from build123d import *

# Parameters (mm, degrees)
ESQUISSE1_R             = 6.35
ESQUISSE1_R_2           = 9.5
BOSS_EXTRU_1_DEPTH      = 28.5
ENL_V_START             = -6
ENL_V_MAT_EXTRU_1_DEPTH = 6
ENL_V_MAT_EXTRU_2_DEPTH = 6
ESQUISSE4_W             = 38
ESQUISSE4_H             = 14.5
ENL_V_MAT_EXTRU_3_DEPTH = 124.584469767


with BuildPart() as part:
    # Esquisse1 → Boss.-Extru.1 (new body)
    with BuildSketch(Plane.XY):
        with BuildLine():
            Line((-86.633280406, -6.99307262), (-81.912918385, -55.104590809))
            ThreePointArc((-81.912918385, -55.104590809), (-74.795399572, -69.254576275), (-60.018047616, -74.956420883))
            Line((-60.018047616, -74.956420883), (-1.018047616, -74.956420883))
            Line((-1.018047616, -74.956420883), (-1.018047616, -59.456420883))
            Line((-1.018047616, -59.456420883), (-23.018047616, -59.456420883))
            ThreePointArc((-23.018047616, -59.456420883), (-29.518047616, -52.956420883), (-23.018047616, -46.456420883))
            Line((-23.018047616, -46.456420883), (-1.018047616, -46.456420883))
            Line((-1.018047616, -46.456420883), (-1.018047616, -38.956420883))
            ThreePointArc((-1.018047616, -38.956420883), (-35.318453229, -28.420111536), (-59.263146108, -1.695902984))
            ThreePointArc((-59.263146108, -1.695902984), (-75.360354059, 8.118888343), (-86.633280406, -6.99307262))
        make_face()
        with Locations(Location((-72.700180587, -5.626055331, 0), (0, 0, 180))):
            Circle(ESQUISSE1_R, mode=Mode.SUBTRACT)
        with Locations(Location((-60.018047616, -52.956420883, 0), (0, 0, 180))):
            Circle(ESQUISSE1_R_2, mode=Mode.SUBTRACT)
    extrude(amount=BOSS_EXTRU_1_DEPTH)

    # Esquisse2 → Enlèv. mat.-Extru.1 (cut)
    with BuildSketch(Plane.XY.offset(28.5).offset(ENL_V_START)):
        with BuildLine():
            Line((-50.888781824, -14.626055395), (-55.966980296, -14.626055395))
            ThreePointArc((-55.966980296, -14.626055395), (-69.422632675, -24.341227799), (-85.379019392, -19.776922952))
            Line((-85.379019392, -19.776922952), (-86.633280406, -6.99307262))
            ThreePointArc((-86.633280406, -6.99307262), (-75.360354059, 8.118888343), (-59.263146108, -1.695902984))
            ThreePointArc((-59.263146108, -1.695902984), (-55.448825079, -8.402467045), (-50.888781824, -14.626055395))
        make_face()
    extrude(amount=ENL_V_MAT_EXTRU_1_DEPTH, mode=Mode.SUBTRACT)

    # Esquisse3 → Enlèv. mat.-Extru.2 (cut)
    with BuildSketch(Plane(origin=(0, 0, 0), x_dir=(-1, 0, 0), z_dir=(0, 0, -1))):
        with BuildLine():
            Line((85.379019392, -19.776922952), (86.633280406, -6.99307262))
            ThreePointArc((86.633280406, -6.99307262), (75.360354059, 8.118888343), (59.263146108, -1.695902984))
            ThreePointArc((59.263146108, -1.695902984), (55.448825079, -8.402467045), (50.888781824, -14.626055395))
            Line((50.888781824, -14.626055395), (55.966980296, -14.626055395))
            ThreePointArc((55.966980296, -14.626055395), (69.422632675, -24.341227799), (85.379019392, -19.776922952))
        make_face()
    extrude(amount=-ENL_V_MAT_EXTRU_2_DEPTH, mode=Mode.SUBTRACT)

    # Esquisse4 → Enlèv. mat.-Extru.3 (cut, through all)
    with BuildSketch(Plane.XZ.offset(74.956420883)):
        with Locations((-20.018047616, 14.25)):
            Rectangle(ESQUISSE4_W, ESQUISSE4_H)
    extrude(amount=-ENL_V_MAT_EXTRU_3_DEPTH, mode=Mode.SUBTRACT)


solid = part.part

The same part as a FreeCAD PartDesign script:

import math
import FreeCAD as App
import Part
import Sketcher
from FreeCAD import Vector

doc = App.newDocument("Part")
body = doc.addObject("PartDesign::Body", "Body")

sketch1 = doc.addObject("Sketcher::SketchObject", "Sketch")
body.addObject(sketch1)
sketch1.AttachmentSupport = (doc.XY_Plane, [""])
sketch1.MapMode = "FlatFace"
sketch1.addGeometry(Part.LineSegment(Vector(-86.63328, -6.993073, 0), Vector(-81.912918, -55.104591, 0)), False)
sketch1.addGeometry(Part.ArcOfCircle(Part.Circle(Vector(-60.018048, -52.956421, 0), Vector(0, 0, 1), 22), math.radians(-174.396477), math.radians(-90)), False)
sketch1.addGeometry(Part.LineSegment(Vector(-60.018048, -74.956421, 0), Vector(-1.018048, -74.956421, 0)), False)
sketch1.addGeometry(Part.LineSegment(Vector(-1.018048, -74.956421, 0), Vector(-1.018048, -59.456421, 0)), False)
sketch1.addGeometry(Part.LineSegment(Vector(-1.018048, -59.456421, 0), Vector(-23.018048, -59.456421, 0)), False)
sketch1.addGeometry(Part.ArcOfCircle(Part.Circle(Vector(-23.018048, -52.956421, 0), Vector(0, 0, 1), 6.5), math.radians(90), math.radians(270)), False)
sketch1.addGeometry(Part.LineSegment(Vector(-23.018048, -46.456421, 0), Vector(-1.018048, -46.456421, 0)), False)
sketch1.addGeometry(Part.LineSegment(Vector(-1.018048, -46.456421, 0), Vector(-1.018048, -38.956421, 0)), False)
sketch1.addGeometry(Part.ArcOfCircle(Part.Circle(Vector(0.786908, 28.019262, 0), Vector(0, 0, 1), 67), math.radians(-153.671956), math.radians(-91.543714)), False)
sketch1.addGeometry(Part.ArcOfCircle(Part.Circle(Vector(-72.700181, -5.626055, 0), Vector(0, 0, 1), 14), math.radians(16.30349), math.radians(185.603523)), False)
sketch1.addGeometry(Part.Circle(Vector(-60.018048, -52.956421, 0), Vector(0, 0, 1), 9.5), False)
sketch1.addGeometry(Part.Circle(Vector(-72.700181, -5.626055, 0), Vector(0, 0, 1), 6.35), False)
sketch1.addConstraint(Sketcher.Constraint("Coincident", 0, 2, 1, 1))
sketch1.addConstraint(Sketcher.Constraint("Coincident", 1, 2, 2, 1))
sketch1.addConstraint(Sketcher.Constraint("Coincident", 2, 2, 3, 1))
sketch1.addConstraint(Sketcher.Constraint("Coincident", 3, 2, 4, 1))
sketch1.addConstraint(Sketcher.Constraint("Coincident", 4, 2, 5, 2))
sketch1.addConstraint(Sketcher.Constraint("Coincident", 5, 1, 6, 1))
sketch1.addConstraint(Sketcher.Constraint("Coincident", 6, 2, 7, 1))
sketch1.addConstraint(Sketcher.Constraint("Coincident", 7, 2, 8, 2))
sketch1.addConstraint(Sketcher.Constraint("Coincident", 8, 1, 9, 1))
sketch1.addConstraint(Sketcher.Constraint("Coincident", 9, 2, 0, 1))
sketch1.addConstraint(Sketcher.Constraint("Horizontal", 2))
sketch1.addConstraint(Sketcher.Constraint("Vertical", 3))
sketch1.addConstraint(Sketcher.Constraint("Horizontal", 4))
sketch1.addConstraint(Sketcher.Constraint("Horizontal", 6))
sketch1.addConstraint(Sketcher.Constraint("Vertical", 7))
sketch1.addConstraint(Sketcher.Constraint("Coincident", 10, 3, 1, 3))
sketch1.addConstraint(Sketcher.Constraint("Coincident", 11, 3, 9, 3))
sketch1.addConstraint(Sketcher.Constraint("Diameter", 10, 19.0))
sketch1.addConstraint(Sketcher.Constraint("Radius", 1, 22.0))
sketch1.addConstraint(Sketcher.Constraint("Radius", 8, 67.0))
sketch1.addConstraint(Sketcher.Constraint("Radius", 9, 14.0))
sketch1.addConstraint(Sketcher.Constraint("Diameter", 11, 12.7))
sketch1.addConstraint(Sketcher.Constraint("Radius", 5, 6.5))
sketch1.addConstraint(Sketcher.Constraint("DistanceX", 2, 1, 2, 2, 59.0))
sketch1.addConstraint(Sketcher.Constraint("DistanceX", 4, 2, 4, 1, 22.0))
sketch1.addConstraint(Sketcher.Constraint("DistanceX", 6, 1, 6, 2, 22.0))
sketch1.addConstraint(Sketcher.Constraint("DistanceY", 3, 1, 3, 2, 15.5))
sketch1.addConstraint(Sketcher.Constraint("DistanceY", 7, 1, 7, 2, 7.5))
sketch1.addConstraint(Sketcher.Constraint("DistanceX", 1, 3, 5, 3, 37.0))
sketch1.addConstraint(Sketcher.Constraint("DistanceX", 1, 2, 5, 3, 37.0))
sketch1.addConstraint(Sketcher.Constraint("DistanceX", 5, 1, 3, 2, 22.0))
sketch1.addConstraint(Sketcher.Constraint("DistanceX", 1, 3, 8, 1, 0.754902))
sketch1.addConstraint(Sketcher.Constraint("DistanceX", 9, 2, 9, 3, 13.9331))
sketch1.addConstraint(Sketcher.Constraint("DistanceY", 1, 3, -1, 1, 52.956421))
sketch1.addConstraint(Sketcher.Constraint("DistanceX", 9, 3, -1, 1, 72.700181))
sketch1.addConstraint(Sketcher.Constraint("DistanceX", 0, 2, -1, 1, 81.912918))
sketch1.addConstraint(Sketcher.Constraint("DistanceY", 0, 2, -1, 1, 55.104591))
sketch1.addConstraint(Sketcher.Constraint("DistanceX", 9, 3, 8, 3, 73.487088))
pad1 = doc.addObject("PartDesign::Pad", "Pad")
body.addObject(pad1)
pad1.Profile = sketch1
pad1.Length = 28.5

sketch2 = doc.addObject("Sketcher::SketchObject", "Sketch001")
body.addObject(sketch2)
sketch2.AttachmentSupport = (doc.XY_Plane, [""])
sketch2.MapMode = "FlatFace"
sketch2.AttachmentOffset = App.Placement(Vector(0, 0, 22.5), App.Rotation())
sketch2.addGeometry(Part.LineSegment(Vector(-56, -15, 0), Vector(-51, -15, 0)), False)
sketch2.addGeometry(Part.ArcOfCircle(Part.Circle(Vector(1, 28, 0), Vector(0, 0, 1), 67), math.radians(-153.67), math.radians(-140.47)), False)
sketch2.addGeometry(Part.ArcOfCircle(Part.Circle(Vector(-73, -6, 0), Vector(0, 0, 1), 14), math.radians(16), math.radians(186)), False)
sketch2.addGeometry(Part.LineSegment(Vector(-87, -7, 0), Vector(-85, -20, 0)), False)
sketch2.addGeometry(Part.ArcOfCircle(Part.Circle(Vector(-73, -6, 0), Vector(0, 0, 1), 19), math.radians(-132), math.radians(-28)), False)
sketch2.addConstraint(Sketcher.Constraint("Coincident", 0, 2, 1, 2))
sketch2.addConstraint(Sketcher.Constraint("Coincident", 1, 1, 2, 1))
sketch2.addConstraint(Sketcher.Constraint("Tangent", 2, 2, 3, 1))
sketch2.addConstraint(Sketcher.Constraint("Coincident", 3, 2, 4, 1))
sketch2.addConstraint(Sketcher.Constraint("Coincident", 4, 2, 0, 1))
sketch2.addConstraint(Sketcher.Constraint("Horizontal", 0))
sketch2.addConstraint(Sketcher.Constraint("Coincident", 4, 3, 2, 3))
sketch2.addConstraint(Sketcher.Constraint("Radius", 1, 67.0))
sketch2.addConstraint(Sketcher.Constraint("Radius", 2, 14.0))
sketch2.addConstraint(Sketcher.Constraint("Radius", 4, 19.0))
sketch2.addConstraint(Sketcher.Constraint("DistanceY", 0, 2, 2, 3, 9.0))
sketch2.addConstraint(Sketcher.Constraint("DistanceX", 0, 1, 0, 2, 5.078198))
sketch2.addConstraint(Sketcher.Constraint("DistanceX", 2, 2, 2, 3, 13.9331))
sketch2.addConstraint(Sketcher.Constraint("DistanceX", 2, 3, -1, 1, 72.700181))
sketch2.addConstraint(Sketcher.Constraint("DistanceX", 2, 3, 1, 3, 73.487088))
sketch2.addConstraint(Sketcher.Constraint("DistanceY", -1, 1, 1, 3, 28.019262))
pocket1 = doc.addObject("PartDesign::Pocket", "Pocket")
body.addObject(pocket1)
pocket1.Profile = sketch2
pocket1.Length = 6
pocket1.Reversed = True

sketch3 = doc.addObject("Sketcher::SketchObject", "Sketch002")
body.addObject(sketch3)
sketch3.AttachmentSupport = (doc.XY_Plane, [""])
sketch3.MapMode = "FlatFace"
sketch3.addGeometry(Part.LineSegment(Vector(-85, -20, 0), Vector(-87, -7, 0)), False)
sketch3.addGeometry(Part.ArcOfCircle(Part.Circle(Vector(-73, -6, 0), Vector(0, 0, 1), 14), math.radians(16), math.radians(186)), False)
sketch3.addGeometry(Part.ArcOfCircle(Part.Circle(Vector(1, 28, 0), Vector(0, 0, 1), 67), math.radians(-153.67), math.radians(-140.47)), False)
sketch3.addGeometry(Part.LineSegment(Vector(-51, -15, 0), Vector(-56, -15, 0)), False)
sketch3.addGeometry(Part.ArcOfCircle(Part.Circle(Vector(-73, -6, 0), Vector(0, 0, 1), 19), math.radians(-132), math.radians(-28)), False)
sketch3.addConstraint(Sketcher.Constraint("Tangent", 0, 2, 1, 2))
sketch3.addConstraint(Sketcher.Constraint("Coincident", 1, 1, 2, 1))
sketch3.addConstraint(Sketcher.Constraint("Coincident", 2, 2, 3, 1))
sketch3.addConstraint(Sketcher.Constraint("Coincident", 3, 2, 4, 2))
sketch3.addConstraint(Sketcher.Constraint("Coincident", 4, 1, 0, 1))
sketch3.addConstraint(Sketcher.Constraint("Horizontal", 3))
sketch3.addConstraint(Sketcher.Constraint("Coincident", 4, 3, 1, 3))
sketch3.addConstraint(Sketcher.Constraint("Radius", 1, 14.0))
sketch3.addConstraint(Sketcher.Constraint("Radius", 2, 67.0))
sketch3.addConstraint(Sketcher.Constraint("Radius", 4, 19.0))
sketch3.addConstraint(Sketcher.Constraint("DistanceY", 2, 2, 1, 3, 9.0))
sketch3.addConstraint(Sketcher.Constraint("DistanceX", 3, 2, 3, 1, 5.078198))
sketch3.addConstraint(Sketcher.Constraint("DistanceX", 0, 2, 1, 3, 13.9331))
sketch3.addConstraint(Sketcher.Constraint("DistanceX", 1, 3, -1, 1, 72.700181))
sketch3.addConstraint(Sketcher.Constraint("DistanceX", 1, 3, 2, 3, 73.487088))
sketch3.addConstraint(Sketcher.Constraint("DistanceY", 1, 3, -1, 1, 5.626055))
pocket2 = doc.addObject("PartDesign::Pocket", "Pocket001")
body.addObject(pocket2)
pocket2.Profile = sketch3
pocket2.Length = 6
pocket2.Reversed = True

sketch4 = doc.addObject("Sketcher::SketchObject", "Sketch003")
body.addObject(sketch4)
sketch4.AttachmentSupport = (doc.XZ_Plane, [""])
sketch4.MapMode = "FlatFace"
sketch4.AttachmentOffset = App.Placement(Vector(0, 0, 74.956421), App.Rotation())
sketch4.addGeometry(Part.LineSegment(Vector(-39, 22, 0), Vector(-39, 7, 0)), False)
sketch4.addGeometry(Part.LineSegment(Vector(-39, 7, 0), Vector(-1, 7, 0)), False)
sketch4.addGeometry(Part.LineSegment(Vector(-1, 7, 0), Vector(-1, 22, 0)), False)
sketch4.addGeometry(Part.LineSegment(Vector(-1, 22, 0), Vector(-39, 22, 0)), False)
sketch4.addConstraint(Sketcher.Constraint("Coincident", 0, 2, 1, 1))
sketch4.addConstraint(Sketcher.Constraint("Coincident", 1, 2, 2, 1))
sketch4.addConstraint(Sketcher.Constraint("Coincident", 2, 2, 3, 1))
sketch4.addConstraint(Sketcher.Constraint("Coincident", 3, 2, 0, 1))
sketch4.addConstraint(Sketcher.Constraint("Vertical", 0))
sketch4.addConstraint(Sketcher.Constraint("Horizontal", 1))
sketch4.addConstraint(Sketcher.Constraint("Vertical", 2))
sketch4.addConstraint(Sketcher.Constraint("Horizontal", 3))
sketch4.addConstraint(Sketcher.Constraint("DistanceX", 1, 1, 1, 2, 38.0))
sketch4.addConstraint(Sketcher.Constraint("DistanceY", 0, 2, 0, 1, 14.5))
sketch4.addConstraint(Sketcher.Constraint("DistanceY", -1, 1, 0, 2, 7.0))
sketch4.addConstraint(Sketcher.Constraint("DistanceX", 0, 2, -1, 1, 39.018048))
pocket3 = doc.addObject("PartDesign::Pocket", "Pocket002")
body.addObject(pocket3)
pocket3.Profile = sketch4
pocket3.Type = "ThroughAll"

doc.recompute()
